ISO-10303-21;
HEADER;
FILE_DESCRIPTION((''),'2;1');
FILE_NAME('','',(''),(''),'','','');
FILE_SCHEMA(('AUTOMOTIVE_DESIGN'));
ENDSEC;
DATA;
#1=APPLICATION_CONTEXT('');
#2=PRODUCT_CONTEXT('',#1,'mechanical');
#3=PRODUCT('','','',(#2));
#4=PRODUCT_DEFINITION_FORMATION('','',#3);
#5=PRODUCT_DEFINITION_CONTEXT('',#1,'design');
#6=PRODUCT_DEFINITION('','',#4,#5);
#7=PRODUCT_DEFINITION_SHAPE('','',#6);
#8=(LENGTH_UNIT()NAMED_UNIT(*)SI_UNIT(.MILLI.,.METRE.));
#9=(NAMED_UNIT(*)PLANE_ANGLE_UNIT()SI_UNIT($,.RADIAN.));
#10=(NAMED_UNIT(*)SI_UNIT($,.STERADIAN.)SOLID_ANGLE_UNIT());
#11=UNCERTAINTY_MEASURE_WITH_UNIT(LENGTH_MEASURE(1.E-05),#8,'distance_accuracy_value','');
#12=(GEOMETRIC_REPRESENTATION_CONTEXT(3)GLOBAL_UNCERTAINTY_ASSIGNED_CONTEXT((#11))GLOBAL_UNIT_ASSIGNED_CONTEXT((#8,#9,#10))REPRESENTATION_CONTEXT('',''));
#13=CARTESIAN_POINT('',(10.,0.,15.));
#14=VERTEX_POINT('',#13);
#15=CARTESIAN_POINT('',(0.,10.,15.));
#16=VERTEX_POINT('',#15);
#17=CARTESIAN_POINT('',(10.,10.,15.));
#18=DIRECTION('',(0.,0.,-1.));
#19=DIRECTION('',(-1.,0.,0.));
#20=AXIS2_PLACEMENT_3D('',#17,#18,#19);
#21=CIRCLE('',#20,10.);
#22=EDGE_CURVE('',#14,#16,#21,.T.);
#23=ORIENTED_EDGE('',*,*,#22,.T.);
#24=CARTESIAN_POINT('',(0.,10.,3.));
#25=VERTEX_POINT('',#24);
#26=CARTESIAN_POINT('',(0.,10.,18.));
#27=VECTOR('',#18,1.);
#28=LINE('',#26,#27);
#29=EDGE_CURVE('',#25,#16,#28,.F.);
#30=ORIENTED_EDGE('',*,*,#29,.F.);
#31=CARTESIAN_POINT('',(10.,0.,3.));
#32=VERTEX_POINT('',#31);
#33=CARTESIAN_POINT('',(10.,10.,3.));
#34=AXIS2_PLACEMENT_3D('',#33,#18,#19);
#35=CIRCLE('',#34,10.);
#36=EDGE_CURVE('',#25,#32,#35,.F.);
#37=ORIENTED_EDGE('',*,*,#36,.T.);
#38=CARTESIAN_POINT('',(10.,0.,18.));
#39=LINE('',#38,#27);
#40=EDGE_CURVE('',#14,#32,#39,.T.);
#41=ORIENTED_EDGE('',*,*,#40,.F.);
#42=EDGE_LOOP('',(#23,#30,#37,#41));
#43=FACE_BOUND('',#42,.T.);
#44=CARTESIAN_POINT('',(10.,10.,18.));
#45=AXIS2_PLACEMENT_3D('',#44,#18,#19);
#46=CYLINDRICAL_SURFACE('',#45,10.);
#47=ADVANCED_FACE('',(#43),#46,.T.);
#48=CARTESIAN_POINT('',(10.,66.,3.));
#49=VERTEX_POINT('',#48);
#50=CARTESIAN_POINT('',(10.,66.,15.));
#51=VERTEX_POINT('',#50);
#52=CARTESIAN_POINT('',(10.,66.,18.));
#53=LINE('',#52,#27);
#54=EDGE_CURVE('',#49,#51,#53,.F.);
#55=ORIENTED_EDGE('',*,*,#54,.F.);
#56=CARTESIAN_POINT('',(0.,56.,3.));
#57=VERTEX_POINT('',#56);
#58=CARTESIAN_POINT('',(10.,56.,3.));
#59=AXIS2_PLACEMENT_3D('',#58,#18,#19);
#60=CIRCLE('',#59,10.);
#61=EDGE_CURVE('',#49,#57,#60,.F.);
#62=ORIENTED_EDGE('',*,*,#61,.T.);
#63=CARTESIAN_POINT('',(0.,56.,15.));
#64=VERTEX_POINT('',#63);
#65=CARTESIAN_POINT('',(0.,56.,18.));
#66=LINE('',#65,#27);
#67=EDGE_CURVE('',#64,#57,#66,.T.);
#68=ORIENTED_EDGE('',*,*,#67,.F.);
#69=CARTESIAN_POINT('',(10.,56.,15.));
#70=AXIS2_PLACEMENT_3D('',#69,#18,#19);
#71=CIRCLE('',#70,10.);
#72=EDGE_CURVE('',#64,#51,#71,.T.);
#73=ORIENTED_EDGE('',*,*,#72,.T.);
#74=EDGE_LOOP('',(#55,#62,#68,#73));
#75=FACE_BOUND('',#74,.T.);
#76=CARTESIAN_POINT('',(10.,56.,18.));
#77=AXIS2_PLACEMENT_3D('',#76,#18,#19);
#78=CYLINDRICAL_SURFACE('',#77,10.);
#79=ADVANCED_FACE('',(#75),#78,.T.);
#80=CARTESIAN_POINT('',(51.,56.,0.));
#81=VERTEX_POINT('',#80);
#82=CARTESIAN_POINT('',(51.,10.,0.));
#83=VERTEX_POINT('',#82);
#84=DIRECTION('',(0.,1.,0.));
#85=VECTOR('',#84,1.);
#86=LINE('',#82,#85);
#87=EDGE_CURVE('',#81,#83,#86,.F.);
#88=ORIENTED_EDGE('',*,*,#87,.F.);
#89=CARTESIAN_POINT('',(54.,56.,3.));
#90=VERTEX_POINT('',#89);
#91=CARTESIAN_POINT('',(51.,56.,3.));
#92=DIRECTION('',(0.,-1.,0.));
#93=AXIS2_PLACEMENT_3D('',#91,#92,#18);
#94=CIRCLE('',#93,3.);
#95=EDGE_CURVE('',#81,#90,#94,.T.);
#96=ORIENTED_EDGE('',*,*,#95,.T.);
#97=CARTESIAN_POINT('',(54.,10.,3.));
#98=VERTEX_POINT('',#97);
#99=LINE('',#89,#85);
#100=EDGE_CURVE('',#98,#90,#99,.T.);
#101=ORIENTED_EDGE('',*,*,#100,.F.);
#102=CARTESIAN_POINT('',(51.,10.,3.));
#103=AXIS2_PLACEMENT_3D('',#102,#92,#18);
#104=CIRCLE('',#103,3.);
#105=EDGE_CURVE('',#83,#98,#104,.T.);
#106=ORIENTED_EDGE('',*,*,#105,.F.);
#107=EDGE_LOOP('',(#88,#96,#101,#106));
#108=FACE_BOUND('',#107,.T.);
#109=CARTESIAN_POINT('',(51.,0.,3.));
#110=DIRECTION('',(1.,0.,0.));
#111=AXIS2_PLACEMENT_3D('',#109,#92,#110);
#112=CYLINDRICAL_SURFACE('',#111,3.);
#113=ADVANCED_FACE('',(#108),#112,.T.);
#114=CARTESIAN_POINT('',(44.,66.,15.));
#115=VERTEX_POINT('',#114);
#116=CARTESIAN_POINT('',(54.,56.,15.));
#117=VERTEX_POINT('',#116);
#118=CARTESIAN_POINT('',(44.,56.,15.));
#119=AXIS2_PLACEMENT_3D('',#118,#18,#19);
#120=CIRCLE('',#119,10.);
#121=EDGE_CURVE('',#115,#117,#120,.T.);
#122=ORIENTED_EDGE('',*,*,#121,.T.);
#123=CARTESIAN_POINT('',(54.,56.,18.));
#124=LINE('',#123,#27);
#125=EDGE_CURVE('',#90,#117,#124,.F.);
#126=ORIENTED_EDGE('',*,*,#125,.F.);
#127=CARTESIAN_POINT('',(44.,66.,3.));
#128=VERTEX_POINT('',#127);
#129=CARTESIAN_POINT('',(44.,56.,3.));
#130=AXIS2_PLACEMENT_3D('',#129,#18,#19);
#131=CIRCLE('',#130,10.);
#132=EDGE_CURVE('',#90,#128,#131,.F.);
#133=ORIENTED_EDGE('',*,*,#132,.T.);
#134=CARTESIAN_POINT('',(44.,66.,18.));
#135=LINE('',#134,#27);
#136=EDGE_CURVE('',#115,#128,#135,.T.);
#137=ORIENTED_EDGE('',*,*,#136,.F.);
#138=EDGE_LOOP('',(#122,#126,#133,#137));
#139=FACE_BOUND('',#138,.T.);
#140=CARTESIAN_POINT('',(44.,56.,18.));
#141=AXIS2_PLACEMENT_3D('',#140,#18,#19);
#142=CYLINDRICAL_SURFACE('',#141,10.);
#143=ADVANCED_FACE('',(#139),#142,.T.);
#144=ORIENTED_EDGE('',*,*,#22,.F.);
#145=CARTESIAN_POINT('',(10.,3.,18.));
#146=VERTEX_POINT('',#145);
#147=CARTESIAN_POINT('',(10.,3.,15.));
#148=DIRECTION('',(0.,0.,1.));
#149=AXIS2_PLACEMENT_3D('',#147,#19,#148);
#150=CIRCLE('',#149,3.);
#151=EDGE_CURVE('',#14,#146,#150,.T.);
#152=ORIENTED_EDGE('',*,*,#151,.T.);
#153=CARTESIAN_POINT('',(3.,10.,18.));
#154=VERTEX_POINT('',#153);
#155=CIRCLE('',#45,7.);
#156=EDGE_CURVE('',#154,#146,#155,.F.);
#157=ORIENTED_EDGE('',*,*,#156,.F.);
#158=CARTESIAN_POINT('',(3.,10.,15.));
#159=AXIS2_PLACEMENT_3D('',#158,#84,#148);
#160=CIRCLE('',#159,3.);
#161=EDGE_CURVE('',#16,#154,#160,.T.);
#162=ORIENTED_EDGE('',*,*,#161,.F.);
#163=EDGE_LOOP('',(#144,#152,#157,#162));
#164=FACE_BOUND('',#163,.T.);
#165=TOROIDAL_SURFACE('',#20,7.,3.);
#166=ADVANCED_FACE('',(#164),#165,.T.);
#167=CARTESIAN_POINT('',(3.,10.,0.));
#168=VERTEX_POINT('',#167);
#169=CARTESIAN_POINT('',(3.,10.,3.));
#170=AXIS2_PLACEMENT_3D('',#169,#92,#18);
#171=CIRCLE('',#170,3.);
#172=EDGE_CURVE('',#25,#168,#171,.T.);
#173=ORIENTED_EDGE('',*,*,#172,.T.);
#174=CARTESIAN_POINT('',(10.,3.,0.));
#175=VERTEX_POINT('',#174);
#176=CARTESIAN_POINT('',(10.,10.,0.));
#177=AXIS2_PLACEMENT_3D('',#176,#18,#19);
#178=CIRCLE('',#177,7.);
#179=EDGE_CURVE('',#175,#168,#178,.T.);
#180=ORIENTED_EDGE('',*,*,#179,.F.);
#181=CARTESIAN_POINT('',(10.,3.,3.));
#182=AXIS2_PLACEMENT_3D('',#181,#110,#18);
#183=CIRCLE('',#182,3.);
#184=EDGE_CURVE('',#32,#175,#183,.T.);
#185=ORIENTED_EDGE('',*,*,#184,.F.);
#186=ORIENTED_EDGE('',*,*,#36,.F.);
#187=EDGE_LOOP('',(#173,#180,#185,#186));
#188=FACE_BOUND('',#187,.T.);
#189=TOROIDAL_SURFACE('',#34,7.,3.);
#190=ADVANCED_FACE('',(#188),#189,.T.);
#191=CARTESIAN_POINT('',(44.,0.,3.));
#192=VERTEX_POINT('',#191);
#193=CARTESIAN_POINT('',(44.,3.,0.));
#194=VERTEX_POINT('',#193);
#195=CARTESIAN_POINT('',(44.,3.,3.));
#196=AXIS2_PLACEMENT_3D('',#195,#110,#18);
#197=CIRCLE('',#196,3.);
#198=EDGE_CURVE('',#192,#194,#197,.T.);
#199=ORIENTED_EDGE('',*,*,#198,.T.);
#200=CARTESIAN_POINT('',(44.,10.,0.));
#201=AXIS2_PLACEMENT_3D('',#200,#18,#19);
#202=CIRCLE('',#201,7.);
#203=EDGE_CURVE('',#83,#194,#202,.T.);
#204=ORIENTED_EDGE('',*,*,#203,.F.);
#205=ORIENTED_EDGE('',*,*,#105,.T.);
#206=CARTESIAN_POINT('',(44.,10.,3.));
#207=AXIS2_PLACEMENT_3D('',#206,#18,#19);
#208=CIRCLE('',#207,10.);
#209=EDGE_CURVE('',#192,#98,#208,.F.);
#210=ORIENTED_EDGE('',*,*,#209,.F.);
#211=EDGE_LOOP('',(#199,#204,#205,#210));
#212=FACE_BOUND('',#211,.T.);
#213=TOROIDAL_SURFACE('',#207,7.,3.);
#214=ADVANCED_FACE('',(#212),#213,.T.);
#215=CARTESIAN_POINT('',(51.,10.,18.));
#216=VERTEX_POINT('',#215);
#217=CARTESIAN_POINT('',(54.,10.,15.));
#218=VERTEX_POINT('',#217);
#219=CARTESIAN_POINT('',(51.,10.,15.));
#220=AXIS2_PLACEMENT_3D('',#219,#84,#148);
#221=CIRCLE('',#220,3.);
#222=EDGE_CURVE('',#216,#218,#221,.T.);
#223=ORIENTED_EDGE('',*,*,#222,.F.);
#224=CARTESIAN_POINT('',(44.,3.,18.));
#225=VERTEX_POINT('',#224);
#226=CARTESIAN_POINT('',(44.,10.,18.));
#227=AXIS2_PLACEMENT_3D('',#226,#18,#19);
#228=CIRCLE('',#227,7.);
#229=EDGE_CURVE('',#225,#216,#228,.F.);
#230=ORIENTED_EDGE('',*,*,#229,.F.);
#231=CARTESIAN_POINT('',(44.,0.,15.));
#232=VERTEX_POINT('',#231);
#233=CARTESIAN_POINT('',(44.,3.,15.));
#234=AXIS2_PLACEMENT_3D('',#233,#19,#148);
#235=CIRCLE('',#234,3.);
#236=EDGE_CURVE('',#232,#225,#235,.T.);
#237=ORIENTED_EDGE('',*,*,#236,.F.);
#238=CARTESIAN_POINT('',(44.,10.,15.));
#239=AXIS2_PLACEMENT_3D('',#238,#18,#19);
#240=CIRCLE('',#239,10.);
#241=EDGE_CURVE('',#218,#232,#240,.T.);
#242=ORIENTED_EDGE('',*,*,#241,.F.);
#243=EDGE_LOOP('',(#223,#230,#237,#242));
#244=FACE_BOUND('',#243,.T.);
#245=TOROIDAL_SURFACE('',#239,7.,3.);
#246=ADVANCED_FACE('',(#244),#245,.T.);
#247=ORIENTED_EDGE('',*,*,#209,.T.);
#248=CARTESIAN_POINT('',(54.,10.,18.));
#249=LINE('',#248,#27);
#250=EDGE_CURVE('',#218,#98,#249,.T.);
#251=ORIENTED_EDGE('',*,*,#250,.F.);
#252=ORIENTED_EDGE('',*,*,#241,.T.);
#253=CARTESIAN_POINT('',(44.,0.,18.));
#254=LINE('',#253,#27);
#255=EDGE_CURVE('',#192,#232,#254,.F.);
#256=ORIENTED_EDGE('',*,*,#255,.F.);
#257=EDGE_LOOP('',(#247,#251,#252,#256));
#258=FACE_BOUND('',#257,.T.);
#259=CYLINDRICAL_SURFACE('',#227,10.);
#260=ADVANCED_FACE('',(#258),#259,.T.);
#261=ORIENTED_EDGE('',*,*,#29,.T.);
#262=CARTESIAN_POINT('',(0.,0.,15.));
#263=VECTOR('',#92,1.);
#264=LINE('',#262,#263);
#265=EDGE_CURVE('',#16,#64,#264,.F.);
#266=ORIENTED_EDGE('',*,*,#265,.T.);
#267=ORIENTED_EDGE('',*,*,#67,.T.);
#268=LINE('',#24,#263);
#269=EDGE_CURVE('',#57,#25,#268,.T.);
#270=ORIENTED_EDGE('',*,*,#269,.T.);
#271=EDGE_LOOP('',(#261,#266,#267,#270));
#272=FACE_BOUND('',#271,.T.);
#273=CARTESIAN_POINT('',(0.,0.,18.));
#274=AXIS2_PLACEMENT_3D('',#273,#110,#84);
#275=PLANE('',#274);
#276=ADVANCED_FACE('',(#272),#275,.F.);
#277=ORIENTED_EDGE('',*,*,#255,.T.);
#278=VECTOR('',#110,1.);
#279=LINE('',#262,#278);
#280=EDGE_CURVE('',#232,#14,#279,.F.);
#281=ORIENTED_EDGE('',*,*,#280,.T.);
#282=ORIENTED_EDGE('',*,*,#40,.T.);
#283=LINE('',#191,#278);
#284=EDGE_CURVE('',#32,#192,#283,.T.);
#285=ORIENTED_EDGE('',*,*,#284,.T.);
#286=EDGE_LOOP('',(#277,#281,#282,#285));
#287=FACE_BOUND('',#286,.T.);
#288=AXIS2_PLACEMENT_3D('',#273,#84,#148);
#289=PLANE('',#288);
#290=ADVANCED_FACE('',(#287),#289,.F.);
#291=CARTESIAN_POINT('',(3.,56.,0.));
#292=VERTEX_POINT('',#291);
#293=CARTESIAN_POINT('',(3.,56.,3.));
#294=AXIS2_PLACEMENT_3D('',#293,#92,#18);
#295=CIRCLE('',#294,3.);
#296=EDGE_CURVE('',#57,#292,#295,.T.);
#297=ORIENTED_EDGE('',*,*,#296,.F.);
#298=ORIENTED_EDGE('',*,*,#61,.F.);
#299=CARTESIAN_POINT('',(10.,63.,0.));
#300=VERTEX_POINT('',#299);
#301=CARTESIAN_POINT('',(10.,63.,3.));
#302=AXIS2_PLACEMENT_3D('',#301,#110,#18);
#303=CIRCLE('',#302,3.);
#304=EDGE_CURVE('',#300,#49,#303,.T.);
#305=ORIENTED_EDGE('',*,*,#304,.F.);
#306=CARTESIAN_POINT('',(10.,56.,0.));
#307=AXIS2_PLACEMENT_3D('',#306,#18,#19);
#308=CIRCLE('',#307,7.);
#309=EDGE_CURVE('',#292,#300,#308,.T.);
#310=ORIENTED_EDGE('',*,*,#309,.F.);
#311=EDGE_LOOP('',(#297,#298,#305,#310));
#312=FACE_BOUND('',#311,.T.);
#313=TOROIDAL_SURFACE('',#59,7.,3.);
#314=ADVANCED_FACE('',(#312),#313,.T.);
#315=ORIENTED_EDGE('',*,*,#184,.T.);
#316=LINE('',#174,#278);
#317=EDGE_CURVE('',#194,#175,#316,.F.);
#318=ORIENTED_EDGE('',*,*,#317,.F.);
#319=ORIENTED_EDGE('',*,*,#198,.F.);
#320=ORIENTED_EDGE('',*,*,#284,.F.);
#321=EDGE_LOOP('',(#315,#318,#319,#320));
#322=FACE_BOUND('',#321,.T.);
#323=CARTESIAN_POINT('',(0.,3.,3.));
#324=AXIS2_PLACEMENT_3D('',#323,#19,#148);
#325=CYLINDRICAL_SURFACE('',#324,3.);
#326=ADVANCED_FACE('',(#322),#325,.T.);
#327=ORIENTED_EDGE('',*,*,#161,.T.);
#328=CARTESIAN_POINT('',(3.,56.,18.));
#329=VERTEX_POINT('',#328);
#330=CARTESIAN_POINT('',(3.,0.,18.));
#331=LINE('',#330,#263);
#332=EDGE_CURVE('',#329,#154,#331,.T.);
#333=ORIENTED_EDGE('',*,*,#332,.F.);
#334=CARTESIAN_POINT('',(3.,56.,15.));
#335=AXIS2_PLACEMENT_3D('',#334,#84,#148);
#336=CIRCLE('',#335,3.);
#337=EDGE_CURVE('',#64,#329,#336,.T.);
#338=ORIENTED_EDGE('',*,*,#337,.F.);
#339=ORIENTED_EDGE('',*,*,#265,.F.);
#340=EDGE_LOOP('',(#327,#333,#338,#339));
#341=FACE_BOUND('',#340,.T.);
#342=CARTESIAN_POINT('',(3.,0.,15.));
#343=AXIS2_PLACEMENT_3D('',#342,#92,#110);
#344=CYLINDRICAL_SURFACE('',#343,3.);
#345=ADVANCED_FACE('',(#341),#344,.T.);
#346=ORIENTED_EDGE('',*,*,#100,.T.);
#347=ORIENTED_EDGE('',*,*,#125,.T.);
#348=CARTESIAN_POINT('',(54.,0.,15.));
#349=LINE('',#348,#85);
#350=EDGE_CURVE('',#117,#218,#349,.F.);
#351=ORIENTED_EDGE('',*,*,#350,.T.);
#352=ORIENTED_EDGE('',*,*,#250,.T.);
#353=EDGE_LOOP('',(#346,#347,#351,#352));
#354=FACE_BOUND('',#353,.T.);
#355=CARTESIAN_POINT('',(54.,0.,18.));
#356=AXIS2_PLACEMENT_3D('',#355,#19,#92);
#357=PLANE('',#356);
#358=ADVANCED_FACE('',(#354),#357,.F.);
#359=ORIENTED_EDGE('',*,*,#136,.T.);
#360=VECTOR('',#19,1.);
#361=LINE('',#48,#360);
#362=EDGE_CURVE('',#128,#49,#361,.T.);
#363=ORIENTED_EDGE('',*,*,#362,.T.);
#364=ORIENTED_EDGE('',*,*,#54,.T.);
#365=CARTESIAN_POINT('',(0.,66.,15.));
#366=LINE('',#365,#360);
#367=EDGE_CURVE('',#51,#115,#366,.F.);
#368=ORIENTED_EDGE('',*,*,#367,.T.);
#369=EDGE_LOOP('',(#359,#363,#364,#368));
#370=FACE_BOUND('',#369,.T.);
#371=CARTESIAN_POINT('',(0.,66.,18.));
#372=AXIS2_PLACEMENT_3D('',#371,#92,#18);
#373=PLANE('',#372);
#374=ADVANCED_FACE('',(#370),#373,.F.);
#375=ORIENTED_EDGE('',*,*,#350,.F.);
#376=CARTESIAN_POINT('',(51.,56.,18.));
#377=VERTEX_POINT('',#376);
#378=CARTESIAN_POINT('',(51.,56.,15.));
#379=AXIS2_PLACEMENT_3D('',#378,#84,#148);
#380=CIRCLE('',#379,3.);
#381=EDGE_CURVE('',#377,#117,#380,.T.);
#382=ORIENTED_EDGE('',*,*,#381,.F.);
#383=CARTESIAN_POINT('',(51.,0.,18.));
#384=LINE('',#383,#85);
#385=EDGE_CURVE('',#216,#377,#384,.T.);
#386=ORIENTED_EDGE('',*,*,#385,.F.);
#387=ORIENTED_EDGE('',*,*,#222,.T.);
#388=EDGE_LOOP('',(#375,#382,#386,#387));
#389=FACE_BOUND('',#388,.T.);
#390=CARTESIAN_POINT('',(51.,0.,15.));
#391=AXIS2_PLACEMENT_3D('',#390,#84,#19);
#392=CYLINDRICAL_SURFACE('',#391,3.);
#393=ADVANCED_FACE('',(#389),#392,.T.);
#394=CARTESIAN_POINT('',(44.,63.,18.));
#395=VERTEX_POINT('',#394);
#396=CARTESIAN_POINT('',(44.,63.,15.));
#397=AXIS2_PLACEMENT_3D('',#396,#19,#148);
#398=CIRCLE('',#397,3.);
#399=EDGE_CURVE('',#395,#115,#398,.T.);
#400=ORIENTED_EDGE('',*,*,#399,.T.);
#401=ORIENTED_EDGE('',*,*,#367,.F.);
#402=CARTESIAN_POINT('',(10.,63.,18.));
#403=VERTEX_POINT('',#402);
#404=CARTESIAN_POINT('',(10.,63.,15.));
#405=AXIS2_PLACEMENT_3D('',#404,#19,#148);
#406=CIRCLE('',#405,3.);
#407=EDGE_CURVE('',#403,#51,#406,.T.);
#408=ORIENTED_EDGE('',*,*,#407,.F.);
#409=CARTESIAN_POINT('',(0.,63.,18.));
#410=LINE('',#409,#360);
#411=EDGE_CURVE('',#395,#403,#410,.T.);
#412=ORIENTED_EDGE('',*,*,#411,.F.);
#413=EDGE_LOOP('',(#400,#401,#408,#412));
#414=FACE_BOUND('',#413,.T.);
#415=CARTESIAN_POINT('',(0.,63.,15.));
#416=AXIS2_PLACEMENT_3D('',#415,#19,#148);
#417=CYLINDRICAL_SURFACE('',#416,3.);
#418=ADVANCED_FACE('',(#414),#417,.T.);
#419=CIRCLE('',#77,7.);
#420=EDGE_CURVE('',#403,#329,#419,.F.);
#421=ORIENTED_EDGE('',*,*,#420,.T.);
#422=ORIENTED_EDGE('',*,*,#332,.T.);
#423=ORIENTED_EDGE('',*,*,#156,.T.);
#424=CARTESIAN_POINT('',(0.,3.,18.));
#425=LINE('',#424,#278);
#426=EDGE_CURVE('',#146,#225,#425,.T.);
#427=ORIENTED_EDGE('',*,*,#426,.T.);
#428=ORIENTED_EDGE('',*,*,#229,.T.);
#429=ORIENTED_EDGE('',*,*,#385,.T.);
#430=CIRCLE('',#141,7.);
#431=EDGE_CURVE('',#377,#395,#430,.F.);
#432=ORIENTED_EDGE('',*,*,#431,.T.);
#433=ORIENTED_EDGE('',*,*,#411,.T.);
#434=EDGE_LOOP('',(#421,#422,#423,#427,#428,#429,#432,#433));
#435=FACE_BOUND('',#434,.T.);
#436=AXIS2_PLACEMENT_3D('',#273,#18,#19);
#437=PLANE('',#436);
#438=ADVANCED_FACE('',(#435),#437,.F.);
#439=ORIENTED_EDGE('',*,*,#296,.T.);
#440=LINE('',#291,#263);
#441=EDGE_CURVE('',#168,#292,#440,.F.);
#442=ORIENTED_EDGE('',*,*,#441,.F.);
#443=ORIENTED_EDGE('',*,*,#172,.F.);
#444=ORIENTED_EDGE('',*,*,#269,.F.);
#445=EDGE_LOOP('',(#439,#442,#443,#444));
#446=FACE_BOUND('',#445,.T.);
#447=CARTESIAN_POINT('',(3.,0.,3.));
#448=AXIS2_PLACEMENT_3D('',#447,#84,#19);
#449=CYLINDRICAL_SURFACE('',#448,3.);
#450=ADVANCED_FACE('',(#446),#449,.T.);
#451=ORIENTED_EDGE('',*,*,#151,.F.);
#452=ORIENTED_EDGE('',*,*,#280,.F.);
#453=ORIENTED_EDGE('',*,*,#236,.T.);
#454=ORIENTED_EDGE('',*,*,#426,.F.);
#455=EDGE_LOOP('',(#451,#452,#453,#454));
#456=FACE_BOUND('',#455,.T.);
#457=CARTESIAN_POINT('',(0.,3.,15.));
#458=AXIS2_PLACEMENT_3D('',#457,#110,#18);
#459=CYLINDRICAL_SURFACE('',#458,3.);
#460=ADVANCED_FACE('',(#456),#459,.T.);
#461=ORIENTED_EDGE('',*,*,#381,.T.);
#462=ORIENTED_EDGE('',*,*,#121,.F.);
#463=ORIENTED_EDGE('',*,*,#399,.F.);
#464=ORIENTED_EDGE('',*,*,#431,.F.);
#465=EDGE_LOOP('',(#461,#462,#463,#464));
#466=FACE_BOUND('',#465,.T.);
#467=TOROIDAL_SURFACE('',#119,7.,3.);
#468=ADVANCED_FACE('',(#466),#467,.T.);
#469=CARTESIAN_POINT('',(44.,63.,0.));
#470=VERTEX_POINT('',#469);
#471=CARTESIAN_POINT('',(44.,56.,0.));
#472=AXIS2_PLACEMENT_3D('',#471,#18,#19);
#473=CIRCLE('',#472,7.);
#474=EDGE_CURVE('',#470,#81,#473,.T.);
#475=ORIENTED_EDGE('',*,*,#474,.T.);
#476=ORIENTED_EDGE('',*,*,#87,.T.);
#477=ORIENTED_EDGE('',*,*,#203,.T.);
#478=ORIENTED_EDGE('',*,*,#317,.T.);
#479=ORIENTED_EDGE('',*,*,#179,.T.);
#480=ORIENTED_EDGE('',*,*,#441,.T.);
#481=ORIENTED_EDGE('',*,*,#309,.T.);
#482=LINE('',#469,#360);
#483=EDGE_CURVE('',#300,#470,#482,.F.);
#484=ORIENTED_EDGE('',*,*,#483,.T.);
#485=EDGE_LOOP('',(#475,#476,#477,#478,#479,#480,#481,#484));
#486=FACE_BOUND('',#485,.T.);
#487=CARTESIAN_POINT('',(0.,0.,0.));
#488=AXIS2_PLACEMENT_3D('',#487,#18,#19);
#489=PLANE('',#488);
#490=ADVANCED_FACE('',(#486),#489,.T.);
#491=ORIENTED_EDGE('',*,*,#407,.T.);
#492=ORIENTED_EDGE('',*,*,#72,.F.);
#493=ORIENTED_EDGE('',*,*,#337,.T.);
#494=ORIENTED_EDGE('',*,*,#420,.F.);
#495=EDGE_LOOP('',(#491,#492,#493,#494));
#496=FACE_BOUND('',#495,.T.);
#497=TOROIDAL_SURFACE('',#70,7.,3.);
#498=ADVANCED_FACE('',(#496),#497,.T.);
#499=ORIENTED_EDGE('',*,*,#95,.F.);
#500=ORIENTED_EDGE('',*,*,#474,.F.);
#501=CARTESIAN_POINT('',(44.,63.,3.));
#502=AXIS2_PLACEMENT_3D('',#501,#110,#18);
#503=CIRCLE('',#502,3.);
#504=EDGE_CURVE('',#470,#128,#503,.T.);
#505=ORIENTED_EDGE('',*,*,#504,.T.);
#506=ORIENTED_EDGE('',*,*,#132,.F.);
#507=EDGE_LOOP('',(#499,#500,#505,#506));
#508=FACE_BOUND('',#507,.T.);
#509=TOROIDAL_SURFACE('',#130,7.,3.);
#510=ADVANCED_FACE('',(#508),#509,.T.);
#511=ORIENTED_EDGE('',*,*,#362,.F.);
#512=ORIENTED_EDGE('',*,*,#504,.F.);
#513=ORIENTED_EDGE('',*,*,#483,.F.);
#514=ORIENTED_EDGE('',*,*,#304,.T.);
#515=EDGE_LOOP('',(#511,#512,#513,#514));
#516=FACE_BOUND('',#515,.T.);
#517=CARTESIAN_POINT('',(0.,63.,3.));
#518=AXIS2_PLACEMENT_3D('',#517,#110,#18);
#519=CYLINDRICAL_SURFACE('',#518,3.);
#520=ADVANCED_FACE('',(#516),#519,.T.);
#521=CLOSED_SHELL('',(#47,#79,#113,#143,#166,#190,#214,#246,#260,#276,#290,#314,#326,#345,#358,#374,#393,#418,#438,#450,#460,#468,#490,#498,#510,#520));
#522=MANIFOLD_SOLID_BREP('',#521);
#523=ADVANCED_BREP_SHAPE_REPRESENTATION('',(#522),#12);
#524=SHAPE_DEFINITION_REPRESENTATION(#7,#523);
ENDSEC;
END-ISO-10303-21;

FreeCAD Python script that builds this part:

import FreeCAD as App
import Part
import Sketcher


def edges_at(feature, points):
    """Names of the edges that pass closest to the given points."""
    edges = feature.Shape.Edges
    near = lambda p: min(range(len(edges)), key=lambda i: edges[i].distToShape(Part.Vertex(*p))[0])
    return sorted({f"Edge{near(p) + 1}" for p in points})

doc = App.newDocument("Part")
body = doc.addObject("PartDesign::Body", "Body")

# Sketch on XY plane
sketch1 = doc.addObject("Sketcher::SketchObject", "Sketch")
body.addObject(sketch1)
sketch1.AttachmentSupport = (doc.XY_Plane, [""])
sketch1.MapMode = "FlatFace"
sketch1.addGeometry(Part.LineSegment(App.Vector(0, 66, 0), App.Vector(0, 0, 0)), False)
sketch1.addGeometry(Part.LineSegment(App.Vector(0, 0, 0), App.Vector(54, 0, 0)), False)
sketch1.addGeometry(Part.LineSegment(App.Vector(54, 0, 0), App.Vector(54, 66, 0)), False)
sketch1.addGeometry(Part.LineSegment(App.Vector(54, 66, 0), App.Vector(0, 66, 0)), False)
sketch1.addConstraint(Sketcher.Constraint("Coincident", 0, 2, 1, 1))
sketch1.addConstraint(Sketcher.Constraint("Coincident", 1, 2, 2, 1))
sketch1.addConstraint(Sketcher.Constraint("Coincident", 2, 2, 3, 1))
sketch1.addConstraint(Sketcher.Constraint("Coincident", 3, 2, 0, 1))
sketch1.addConstraint(Sketcher.Constraint("Vertical", 0))
sketch1.addConstraint(Sketcher.Constraint("Horizontal", 1))
sketch1.addConstraint(Sketcher.Constraint("Vertical", 2))
sketch1.addConstraint(Sketcher.Constraint("Horizontal", 3))
sketch1.addConstraint(Sketcher.Constraint("Coincident", 0, 2, -1, 1))
sketch1.addConstraint(Sketcher.Constraint("DistanceX", 1, 1, 1, 2, 54.0))
sketch1.addConstraint(Sketcher.Constraint("DistanceY", 0, 2, 0, 1, 66.0))
pad1 = doc.addObject("PartDesign::Pad", "Pad")
body.addObject(pad1)
pad1.Profile = sketch1
pad1.Length = 18
doc.recompute()

fillet = doc.addObject("PartDesign::Fillet", "Fillet")
body.addObject(fillet)
fillet.Base = (pad1, edges_at(pad1, [
    (0, 66, 9),
    (54, 66, 9),
    (54, 0, 9),
    (0, 0, 9),
]))
fillet.Radius = 10
doc.recompute()

fillet2 = doc.addObject("PartDesign::Fillet", "Fillet001")
body.addObject(fillet2)
fillet2.Base = (fillet, edges_at(fillet, [
    (27, 0, 0),
    (27, 0, 18),
    (0, 33, 0),
    (27, 66, 0),
    (54, 33, 0),
    (2.929, 63.071, 0),
    (51.071, 63.071, 0),
    (51.071, 2.929, 0),
    (2.929, 2.929, 0),
    (0, 33, 18),
    (54, 33, 18),
    (27, 66, 18),
    (2.929, 63.071, 18),
    (51.071, 63.071, 18),
    (51.071, 2.929, 18),
    (2.929, 2.929, 18),
]))
fillet2.Radius = 3

doc.recompute()
